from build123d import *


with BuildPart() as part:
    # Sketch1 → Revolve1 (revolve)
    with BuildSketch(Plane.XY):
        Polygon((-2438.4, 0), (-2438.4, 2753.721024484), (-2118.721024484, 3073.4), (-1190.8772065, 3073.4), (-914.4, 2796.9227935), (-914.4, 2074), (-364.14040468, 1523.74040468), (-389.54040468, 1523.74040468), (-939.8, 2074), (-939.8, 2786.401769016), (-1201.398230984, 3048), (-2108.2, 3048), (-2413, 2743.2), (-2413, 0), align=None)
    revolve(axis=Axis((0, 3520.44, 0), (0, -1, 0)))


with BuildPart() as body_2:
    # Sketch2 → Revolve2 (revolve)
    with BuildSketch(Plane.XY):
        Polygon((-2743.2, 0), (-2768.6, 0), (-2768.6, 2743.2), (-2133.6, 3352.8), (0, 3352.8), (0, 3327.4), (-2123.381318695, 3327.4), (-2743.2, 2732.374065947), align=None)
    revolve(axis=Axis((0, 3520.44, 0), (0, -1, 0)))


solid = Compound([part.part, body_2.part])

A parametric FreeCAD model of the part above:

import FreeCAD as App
import Part
import Sketcher

V = App.Vector
Q = App.Units.Quantity


def add_polygon(sketch, points):
    """Adds a closed chain of lines whose ends are joined by coincident constraints."""
    first, n = sketch.GeometryCount, len(points)
    for a, b in zip(points, points[1:] + points[:1]):
        sketch.addGeometry(Part.LineSegment(App.Vector(*a, 0), App.Vector(*b, 0)), False)
    for i in range(n):
        sketch.addConstraint(Sketcher.Constraint("Coincident", first + i, 2, first + (i + 1) % n, 1))

doc = App.newDocument("Part")
body = doc.addObject("PartDesign::Body", "Body")

# Sketch on XY plane
sketch1 = doc.addObject("Sketcher::SketchObject", "Sketch")
body.addObject(sketch1)
sketch1.AttachmentSupport = (doc.XY_Plane, [""])
sketch1.MapMode = "FlatFace"
add_polygon(sketch1, [(-2438, 2754), (-2438, 0), (-2413, 0), (-2413, 2743), (-2108, 3048), (-1201, 3048), (-940, 2786), (-940, 2074), (-390, 1524), (-364, 1524), (-914, 2074), (-914, 2797), (-1191, 3073), (-2119, 3073)])  # lines 0-13
sketch1.addConstraint([
    Sketcher.Constraint("Vertical", 0),
    Sketcher.Constraint("Horizontal", 1),
    Sketcher.Constraint("Vertical", 2),
    Sketcher.Constraint("Horizontal", 4),
    Sketcher.Constraint("Vertical", 6),
    Sketcher.Constraint("Horizontal", 8),
    Sketcher.Constraint("Vertical", 10),
    Sketcher.Constraint("Horizontal", 12),
    Sketcher.Constraint("PointOnObject", 0, 2, -1),
    Sketcher.Constraint("Perpendicular", 3, 5),
    Sketcher.Constraint("Parallel", 5, 7),
    Sketcher.Constraint("Parallel", 7, 9),
    Sketcher.Constraint("Parallel", 9, 11),
    Sketcher.Constraint("Perpendicular", 11, 13),
    Sketcher.Constraint("Horizontal", 6, 2, 9, 2),
    Sketcher.Constraint("Equal", 1, 8),
    Sketcher.Constraint("DistanceX", 1, 1, 1, 2, Q("1 in")),
    Sketcher.Constraint("DistanceY", 2, 1, 2, 2, Q("108 in")),
    Sketcher.Constraint("DistanceX", 0, 2, -1, 1, Q("96 in")),
    Sketcher.Constraint("DistanceX", 3, 2, -1, 1, Q("83 in")),
    Sketcher.Constraint("DistanceY", -1, 1, 3, 2, Q("120 in")),
    Sketcher.Constraint("DistanceX", 5, 2, -1, 1, Q("37 in")),
    Sketcher.Constraint("DistanceY", -1, 1, 11, 2, Q("121 in")),
    Sketcher.Constraint("DistanceX", 4, 1, 4, 2, Q("906.801769 mm")),
    Sketcher.Constraint("DistanceY", 6, 2, 6, 1, Q("712.401769 mm")),
    Sketcher.Constraint("DistanceX", 12, 2, 12, 1, Q("927.843818 mm")),
    Sketcher.Constraint("DistanceY", 0, 2, 0, 1, Q("2753.721024 mm")),
    Sketcher.Constraint("Distance", 7, Q("778.184583 mm")),
])
revolution = doc.addObject("PartDesign::Revolution", "Revolution")
body.addObject(revolution)
revolution.Profile = sketch1
revolution.ReferenceAxis = (sketch1, ["V_Axis"])
revolution.Angle = 360
body2 = doc.addObject("PartDesign::Body", "Body001")

# Sketch on XY plane
sketch2 = doc.addObject("Sketcher::SketchObject", "Sketch001")
body2.addObject(sketch2)
sketch2.AttachmentSupport = (doc.getObject("XY_Plane001"), [""])
sketch2.MapMode = "FlatFace"
add_polygon(sketch2, [(-2769, 0), (-2743, 0), (-2743, 2732), (-2123, 3327), (0, 3327), (0, 3353), (-2134, 3353), (-2769, 2743)])  # lines 0-7
sketch2.addConstraint([
    Sketcher.Constraint("Horizontal", 0),
    Sketcher.Constraint("Vertical", 1),
    Sketcher.Constraint("Horizontal", 3),
    Sketcher.Constraint("Vertical", 4),
    Sketcher.Constraint("Horizontal", 5),
    Sketcher.Constraint("Vertical", 7),
    Sketcher.Constraint("PointOnObject", 0, 2, -1),
    Sketcher.Constraint("PointOnObject", 3, 2, -2),
    Sketcher.Constraint("Parallel", 2, 6),
    Sketcher.Constraint("Equal", 0, 4),
    Sketcher.Constraint("DistanceX", 0, 1, 0, 2, Q("1 in")),
    Sketcher.Constraint("DistanceX", 5, 2, 5, 1, Q("84 in")),
    Sketcher.Constraint("DistanceY", 7, 2, 7, 1, Q("108 in")),
    Sketcher.Constraint("DistanceX", 0, 2, -1, 1, Q("108 in")),
    Sketcher.Constraint("DistanceY", -1, 1, 2, 2, Q("131 in")),
    Sketcher.Constraint("DistanceX", 3, 1, 3, 2, Q("2123.381319 mm")),
])
revolution2 = doc.addObject("PartDesign::Revolution", "Revolution001")
body2.addObject(revolution2)
revolution2.Profile = sketch2
revolution2.ReferenceAxis = (sketch2, ["V_Axis"])
revolution2.Angle = 360

doc.recompute()
